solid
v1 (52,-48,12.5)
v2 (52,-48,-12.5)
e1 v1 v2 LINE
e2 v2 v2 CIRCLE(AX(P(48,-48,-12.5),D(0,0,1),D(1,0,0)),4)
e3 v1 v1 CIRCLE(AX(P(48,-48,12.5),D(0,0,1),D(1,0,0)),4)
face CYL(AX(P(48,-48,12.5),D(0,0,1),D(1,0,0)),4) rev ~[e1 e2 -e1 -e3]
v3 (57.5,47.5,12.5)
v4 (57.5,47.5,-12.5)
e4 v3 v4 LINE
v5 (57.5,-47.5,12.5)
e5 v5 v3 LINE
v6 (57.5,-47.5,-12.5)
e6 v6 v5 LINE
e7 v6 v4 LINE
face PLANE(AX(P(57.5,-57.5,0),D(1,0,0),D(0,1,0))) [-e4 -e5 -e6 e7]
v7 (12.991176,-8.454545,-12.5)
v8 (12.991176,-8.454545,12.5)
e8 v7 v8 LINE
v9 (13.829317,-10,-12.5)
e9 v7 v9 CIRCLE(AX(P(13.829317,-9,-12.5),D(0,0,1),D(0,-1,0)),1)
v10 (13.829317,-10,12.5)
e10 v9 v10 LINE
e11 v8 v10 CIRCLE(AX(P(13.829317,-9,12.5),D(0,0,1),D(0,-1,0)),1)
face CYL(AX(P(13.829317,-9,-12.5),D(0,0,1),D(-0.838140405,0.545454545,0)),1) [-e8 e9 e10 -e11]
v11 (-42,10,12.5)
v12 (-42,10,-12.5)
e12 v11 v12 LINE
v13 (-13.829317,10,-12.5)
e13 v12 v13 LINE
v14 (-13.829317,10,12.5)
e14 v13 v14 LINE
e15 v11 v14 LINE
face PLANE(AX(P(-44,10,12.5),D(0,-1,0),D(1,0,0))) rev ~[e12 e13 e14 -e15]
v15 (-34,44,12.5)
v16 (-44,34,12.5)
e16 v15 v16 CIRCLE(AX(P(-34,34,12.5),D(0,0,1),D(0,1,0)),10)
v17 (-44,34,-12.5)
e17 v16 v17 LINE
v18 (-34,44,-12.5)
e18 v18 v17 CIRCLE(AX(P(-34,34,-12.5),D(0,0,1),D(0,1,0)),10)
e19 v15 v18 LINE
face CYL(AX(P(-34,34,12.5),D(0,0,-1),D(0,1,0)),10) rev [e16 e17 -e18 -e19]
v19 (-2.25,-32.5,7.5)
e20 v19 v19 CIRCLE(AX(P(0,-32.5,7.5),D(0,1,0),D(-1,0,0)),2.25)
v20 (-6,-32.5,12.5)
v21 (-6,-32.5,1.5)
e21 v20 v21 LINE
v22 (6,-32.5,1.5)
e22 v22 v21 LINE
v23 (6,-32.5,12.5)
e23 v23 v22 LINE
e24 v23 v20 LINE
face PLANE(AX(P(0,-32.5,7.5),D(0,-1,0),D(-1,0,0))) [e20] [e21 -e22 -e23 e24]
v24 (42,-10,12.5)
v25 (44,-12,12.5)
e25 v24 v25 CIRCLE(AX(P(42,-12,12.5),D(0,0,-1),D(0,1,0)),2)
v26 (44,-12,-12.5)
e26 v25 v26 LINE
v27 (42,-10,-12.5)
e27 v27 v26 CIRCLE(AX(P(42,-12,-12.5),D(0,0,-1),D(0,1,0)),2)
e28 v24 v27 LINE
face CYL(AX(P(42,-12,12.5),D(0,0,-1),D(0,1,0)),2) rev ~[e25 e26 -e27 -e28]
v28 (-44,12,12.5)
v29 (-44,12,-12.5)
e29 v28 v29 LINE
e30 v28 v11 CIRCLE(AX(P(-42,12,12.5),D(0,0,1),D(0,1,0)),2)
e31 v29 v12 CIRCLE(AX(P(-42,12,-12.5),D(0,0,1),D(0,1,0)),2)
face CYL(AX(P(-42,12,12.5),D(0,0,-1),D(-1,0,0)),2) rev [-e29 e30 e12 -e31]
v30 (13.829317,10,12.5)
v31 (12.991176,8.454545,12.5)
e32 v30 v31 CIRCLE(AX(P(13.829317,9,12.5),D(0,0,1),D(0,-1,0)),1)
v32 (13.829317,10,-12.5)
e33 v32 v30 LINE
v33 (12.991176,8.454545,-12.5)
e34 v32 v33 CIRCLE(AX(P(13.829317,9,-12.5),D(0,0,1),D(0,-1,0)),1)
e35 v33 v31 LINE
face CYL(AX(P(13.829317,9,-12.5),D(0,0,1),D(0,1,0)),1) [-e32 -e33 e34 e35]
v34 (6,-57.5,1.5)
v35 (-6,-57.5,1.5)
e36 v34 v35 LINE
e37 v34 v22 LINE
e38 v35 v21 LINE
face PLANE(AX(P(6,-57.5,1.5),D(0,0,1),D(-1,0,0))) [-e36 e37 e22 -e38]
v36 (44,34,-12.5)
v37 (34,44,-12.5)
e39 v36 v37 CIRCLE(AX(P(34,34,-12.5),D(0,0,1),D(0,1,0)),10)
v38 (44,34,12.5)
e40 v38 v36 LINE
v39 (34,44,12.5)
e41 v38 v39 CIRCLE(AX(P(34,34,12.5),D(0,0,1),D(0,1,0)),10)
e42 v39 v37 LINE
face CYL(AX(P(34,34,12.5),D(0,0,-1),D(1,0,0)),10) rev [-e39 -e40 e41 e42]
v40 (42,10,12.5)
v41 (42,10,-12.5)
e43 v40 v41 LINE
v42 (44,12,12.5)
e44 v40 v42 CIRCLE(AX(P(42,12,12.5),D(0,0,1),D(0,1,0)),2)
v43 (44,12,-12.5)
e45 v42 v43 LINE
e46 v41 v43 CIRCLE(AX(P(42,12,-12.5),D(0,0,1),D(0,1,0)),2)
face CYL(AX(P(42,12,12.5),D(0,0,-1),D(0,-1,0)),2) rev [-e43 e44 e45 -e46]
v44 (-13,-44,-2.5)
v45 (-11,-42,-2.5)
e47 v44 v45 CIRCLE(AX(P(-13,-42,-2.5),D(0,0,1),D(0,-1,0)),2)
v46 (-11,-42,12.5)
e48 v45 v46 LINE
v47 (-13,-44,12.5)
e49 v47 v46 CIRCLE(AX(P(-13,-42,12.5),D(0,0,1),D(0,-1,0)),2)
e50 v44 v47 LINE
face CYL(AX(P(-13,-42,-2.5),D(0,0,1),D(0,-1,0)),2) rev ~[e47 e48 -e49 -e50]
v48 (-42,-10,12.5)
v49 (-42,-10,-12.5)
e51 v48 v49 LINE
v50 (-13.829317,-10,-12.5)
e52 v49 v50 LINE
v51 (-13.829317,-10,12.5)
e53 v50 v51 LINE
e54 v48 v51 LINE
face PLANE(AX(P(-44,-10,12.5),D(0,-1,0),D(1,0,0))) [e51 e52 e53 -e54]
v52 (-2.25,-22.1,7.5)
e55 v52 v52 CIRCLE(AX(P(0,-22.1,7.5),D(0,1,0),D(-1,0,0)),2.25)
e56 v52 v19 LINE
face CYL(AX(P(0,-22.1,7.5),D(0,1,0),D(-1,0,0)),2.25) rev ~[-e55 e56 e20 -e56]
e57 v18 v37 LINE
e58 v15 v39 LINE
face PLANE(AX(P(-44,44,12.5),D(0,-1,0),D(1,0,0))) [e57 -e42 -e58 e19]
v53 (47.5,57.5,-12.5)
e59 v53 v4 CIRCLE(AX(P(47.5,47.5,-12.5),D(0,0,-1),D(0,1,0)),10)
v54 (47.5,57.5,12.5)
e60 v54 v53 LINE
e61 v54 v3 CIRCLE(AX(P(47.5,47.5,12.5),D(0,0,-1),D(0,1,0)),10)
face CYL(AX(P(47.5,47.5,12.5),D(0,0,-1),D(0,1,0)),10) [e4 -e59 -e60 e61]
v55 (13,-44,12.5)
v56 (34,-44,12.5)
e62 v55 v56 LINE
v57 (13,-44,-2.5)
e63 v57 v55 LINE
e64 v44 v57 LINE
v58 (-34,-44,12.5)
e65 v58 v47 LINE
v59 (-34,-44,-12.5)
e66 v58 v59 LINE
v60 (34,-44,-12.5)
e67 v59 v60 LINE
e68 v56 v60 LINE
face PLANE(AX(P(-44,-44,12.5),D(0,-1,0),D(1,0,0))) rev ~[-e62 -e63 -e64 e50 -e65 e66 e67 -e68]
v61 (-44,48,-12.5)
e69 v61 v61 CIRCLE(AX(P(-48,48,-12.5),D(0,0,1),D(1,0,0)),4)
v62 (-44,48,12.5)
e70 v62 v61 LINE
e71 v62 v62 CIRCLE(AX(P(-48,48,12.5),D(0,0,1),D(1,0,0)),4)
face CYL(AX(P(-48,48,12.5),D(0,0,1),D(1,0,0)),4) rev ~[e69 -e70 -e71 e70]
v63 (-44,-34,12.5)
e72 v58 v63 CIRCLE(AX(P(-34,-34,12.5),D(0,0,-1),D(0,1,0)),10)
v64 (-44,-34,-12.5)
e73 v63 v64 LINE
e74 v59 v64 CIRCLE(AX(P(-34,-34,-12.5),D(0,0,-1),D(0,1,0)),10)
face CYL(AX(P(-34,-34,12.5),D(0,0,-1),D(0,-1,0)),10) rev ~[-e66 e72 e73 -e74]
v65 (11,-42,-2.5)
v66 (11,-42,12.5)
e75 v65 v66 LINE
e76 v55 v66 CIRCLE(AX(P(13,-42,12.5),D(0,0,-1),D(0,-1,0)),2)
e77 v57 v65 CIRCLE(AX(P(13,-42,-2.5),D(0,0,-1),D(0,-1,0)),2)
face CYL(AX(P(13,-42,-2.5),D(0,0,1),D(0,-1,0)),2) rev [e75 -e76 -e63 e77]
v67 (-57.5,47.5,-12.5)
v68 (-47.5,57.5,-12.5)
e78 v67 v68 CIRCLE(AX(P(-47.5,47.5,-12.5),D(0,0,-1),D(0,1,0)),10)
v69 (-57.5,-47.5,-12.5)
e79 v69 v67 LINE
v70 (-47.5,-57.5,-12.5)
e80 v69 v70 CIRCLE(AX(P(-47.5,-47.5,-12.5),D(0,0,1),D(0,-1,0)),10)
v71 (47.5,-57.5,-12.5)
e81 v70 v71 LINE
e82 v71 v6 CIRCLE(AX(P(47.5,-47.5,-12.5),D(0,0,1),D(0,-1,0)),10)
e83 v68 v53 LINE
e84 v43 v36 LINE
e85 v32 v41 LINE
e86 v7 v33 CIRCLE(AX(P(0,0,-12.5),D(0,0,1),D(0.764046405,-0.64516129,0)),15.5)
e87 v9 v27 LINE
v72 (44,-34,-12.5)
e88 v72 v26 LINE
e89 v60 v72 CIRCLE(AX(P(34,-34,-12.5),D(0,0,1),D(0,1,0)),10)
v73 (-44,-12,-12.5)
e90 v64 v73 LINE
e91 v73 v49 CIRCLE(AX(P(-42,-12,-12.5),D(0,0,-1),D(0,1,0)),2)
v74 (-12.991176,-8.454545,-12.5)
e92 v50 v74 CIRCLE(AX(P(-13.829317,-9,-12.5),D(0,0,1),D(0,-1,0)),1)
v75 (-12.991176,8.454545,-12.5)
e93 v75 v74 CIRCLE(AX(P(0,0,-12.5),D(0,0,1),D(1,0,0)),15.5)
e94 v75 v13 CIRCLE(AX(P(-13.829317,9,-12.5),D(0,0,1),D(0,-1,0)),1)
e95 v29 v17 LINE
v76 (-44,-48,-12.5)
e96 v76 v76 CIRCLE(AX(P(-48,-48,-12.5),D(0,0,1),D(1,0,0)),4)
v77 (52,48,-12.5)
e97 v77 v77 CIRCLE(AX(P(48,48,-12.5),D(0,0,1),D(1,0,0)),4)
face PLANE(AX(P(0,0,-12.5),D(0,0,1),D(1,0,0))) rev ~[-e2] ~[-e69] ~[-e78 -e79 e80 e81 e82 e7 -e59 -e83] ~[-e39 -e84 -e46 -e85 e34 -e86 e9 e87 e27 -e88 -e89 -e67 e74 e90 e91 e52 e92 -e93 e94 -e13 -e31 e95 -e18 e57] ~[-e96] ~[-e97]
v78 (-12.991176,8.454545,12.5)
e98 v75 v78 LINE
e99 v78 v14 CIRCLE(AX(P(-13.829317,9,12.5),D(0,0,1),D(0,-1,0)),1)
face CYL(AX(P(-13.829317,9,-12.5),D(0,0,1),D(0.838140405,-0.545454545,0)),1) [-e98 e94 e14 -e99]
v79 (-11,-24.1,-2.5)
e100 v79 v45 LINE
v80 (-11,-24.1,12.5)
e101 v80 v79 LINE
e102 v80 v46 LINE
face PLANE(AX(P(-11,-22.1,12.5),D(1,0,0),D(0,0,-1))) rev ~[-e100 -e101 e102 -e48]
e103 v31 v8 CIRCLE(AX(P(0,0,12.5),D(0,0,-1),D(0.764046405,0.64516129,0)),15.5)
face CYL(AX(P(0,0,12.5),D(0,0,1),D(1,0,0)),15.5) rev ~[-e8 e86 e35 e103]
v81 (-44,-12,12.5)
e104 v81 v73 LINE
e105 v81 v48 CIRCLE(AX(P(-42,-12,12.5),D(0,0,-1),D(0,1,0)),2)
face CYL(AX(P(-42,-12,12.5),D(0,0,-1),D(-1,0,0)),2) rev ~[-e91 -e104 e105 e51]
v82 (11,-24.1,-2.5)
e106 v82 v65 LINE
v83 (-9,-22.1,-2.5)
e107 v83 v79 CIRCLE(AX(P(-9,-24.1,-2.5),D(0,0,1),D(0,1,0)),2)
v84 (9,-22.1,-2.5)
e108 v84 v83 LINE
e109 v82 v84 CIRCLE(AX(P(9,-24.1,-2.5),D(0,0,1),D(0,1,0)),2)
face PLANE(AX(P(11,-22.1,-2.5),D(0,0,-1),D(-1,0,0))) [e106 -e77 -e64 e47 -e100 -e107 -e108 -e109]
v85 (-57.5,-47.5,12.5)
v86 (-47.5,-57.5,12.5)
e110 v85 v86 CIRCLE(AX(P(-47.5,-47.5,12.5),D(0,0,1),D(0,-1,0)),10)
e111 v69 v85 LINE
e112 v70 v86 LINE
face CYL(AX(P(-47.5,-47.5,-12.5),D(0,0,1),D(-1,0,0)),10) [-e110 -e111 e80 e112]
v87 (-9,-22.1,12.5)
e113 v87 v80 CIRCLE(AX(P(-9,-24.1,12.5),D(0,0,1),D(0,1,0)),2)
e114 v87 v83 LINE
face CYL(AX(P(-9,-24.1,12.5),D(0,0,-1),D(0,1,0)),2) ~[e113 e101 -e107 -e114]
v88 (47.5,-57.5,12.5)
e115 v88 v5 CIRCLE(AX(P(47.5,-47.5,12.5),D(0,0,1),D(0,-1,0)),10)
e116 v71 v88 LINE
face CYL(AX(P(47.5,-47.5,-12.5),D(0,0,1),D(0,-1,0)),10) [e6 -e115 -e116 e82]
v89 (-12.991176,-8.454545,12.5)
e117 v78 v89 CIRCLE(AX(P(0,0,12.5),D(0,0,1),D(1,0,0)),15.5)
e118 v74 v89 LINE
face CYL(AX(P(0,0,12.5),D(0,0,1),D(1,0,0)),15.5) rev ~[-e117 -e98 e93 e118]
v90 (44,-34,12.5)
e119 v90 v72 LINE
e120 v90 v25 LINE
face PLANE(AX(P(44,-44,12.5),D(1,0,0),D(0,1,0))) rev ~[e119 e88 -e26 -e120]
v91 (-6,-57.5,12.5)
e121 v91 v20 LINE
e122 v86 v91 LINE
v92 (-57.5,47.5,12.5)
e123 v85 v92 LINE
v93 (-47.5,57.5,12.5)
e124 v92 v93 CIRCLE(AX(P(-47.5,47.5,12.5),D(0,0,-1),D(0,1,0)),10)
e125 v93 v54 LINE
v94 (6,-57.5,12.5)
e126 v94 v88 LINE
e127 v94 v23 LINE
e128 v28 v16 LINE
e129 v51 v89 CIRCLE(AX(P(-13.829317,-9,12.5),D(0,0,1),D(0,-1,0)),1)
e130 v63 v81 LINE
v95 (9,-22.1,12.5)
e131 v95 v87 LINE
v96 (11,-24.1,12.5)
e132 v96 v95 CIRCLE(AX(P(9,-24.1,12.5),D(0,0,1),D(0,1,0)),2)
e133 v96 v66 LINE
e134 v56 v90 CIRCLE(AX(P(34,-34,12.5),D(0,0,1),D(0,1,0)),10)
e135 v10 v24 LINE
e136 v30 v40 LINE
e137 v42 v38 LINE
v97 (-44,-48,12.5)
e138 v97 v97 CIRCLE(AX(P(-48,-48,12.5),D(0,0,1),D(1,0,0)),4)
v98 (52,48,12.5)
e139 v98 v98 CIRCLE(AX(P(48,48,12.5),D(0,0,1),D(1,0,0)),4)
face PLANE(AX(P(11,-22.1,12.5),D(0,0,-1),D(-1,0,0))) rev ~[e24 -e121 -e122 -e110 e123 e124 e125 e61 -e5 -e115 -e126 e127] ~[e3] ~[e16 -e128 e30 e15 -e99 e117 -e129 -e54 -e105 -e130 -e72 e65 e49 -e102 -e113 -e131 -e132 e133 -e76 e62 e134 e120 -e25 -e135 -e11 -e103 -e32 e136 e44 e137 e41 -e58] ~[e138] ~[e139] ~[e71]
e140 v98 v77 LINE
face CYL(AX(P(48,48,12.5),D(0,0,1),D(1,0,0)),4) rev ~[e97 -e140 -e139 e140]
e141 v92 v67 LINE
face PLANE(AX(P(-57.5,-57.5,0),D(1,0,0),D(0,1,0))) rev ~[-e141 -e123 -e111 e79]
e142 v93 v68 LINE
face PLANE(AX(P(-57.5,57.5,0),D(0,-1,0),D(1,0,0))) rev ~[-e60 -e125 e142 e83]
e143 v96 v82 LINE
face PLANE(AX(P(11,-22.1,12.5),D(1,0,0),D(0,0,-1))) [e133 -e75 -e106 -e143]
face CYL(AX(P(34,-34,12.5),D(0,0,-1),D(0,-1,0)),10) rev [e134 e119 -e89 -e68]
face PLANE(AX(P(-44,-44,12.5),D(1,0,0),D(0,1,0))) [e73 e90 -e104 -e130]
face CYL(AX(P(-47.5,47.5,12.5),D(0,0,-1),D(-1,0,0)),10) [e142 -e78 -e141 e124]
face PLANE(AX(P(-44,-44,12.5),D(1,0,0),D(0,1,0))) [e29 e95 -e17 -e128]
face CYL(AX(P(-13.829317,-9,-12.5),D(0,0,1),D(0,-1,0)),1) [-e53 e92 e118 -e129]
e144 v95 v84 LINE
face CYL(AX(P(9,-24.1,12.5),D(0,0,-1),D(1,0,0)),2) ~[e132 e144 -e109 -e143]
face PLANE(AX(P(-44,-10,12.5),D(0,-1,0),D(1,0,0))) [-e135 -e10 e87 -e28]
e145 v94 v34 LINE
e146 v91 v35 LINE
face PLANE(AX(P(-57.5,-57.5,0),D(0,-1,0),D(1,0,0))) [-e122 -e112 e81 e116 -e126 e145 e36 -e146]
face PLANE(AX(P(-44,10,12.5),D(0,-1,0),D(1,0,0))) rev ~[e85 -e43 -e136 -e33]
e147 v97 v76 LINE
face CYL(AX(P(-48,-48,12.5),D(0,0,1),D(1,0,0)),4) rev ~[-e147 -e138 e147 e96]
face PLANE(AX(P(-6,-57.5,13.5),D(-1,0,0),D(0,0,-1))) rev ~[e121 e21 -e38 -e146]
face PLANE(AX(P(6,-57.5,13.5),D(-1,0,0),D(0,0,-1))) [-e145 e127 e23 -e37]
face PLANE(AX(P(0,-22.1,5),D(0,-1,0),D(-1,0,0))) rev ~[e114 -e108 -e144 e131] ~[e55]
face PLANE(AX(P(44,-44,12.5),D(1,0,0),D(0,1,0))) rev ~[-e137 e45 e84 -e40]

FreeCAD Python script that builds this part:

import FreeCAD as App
import Part
import Sketcher
from FreeCAD import Vector
Q = App.Units.Quantity


def edges_at(feature, points):
    """Names of the edges that pass closest to the given points."""
    edges = feature.Shape.Edges
    near = lambda p: min(range(len(edges)), key=lambda i: edges[i].distToShape(Part.Vertex(*p))[0])
    return sorted({f"Edge{near(p) + 1}" for p in points})


def add_polygon(sketch, points):
    """Adds a closed chain of lines whose ends are joined by coincident constraints."""
    first, n = sketch.GeometryCount, len(points)
    for a, b in zip(points, points[1:] + points[:1]):
        sketch.addGeometry(Part.LineSegment(App.Vector(*a, 0), App.Vector(*b, 0)), False)
    for i in range(n):
        sketch.addConstraint(Sketcher.Constraint("Coincident", first + i, 2, first + (i + 1) % n, 1))

doc = App.newDocument("Part")
body = doc.addObject("PartDesign::Body", "Body")

sketch1 = body.newObject("Sketcher::SketchObject", "Sketch")
sketch1.AttachmentSupport = (doc.getObject("XY_Plane"), [""])
sketch1.MapMode = "FlatFace"
add_polygon(sketch1, [(-57.5, 57.5), (-57.5, -57.5), (57.5, -57.5), (57.5, 57.5)])
sketch1.addConstraint(Sketcher.Constraint("Vertical", 0))
sketch1.addConstraint(Sketcher.Constraint("Horizontal", 1))
sketch1.addConstraint(Sketcher.Constraint("Vertical", 2))
sketch1.addConstraint(Sketcher.Constraint("Horizontal", 3))
sketch1.addConstraint(Sketcher.Constraint("Symmetric", 0, 2, 2, 2, -1, 1))
sketch1.addConstraint(Sketcher.Constraint("Equal", 3, 0))
sketch1.addConstraint(Sketcher.Constraint("DistanceX", 1, 1, 1, 2, Q("115 mm")))
pad1 = body.newObject("PartDesign::Pad", "Pad")
pad1.Profile = sketch1
pad1.Length = 25
pad1.Midplane = True

sketch2 = body.newObject("Sketcher::SketchObject", "Sketch001")
sketch2.AttachmentSupport = (doc.getObject("XY_Plane"), [""])
sketch2.MapMode = "FlatFace"
sketch2.AttachmentOffset = App.Placement(Vector(0, 0, 12.5), App.Rotation())
sketch2.addGeometry(Part.Circle(Vector(-48, 48, 0), Vector(0, 0, 1), 4), False)
sketch2.addGeometry(Part.Circle(Vector(48, 48, 0), Vector(0, 0, 1), 4), False)
sketch2.addGeometry(Part.Circle(Vector(48, -48, 0), Vector(0, 0, 1), 4), False)
sketch2.addGeometry(Part.Circle(Vector(-48, -48, 0), Vector(0, 0, 1), 4), False)
sketch2.addConstraint(Sketcher.Constraint("Equal", 0, 1))
sketch2.addConstraint(Sketcher.Constraint("Equal", 1, 2))
sketch2.addConstraint(Sketcher.Constraint("Equal", 2, 3))
sketch2.addConstraint(Sketcher.Constraint("Symmetric", 0, 3, 2, 3, -1, 1))
sketch2.addConstraint(Sketcher.Constraint("Symmetric", 1, 3, 3, 3, -1, 1))
sketch2.addConstraint(Sketcher.Constraint("Symmetric", 0, 3, 1, 3, -2))
sketch2.addConstraint(Sketcher.Constraint("Diameter", 0, Q("8 mm")))
sketch2.addConstraint(Sketcher.Constraint("DistanceX", 0, 3, -1, 1, Q("48 mm")))
sketch2.addConstraint(Sketcher.Constraint("DistanceY", -1, 1, 0, 3, Q("48 mm")))
pocket1 = body.newObject("PartDesign::Pocket", "Pocket")
pocket1.Profile = sketch2
pocket1.Length = 30
doc.recompute()

fillet = body.newObject("PartDesign::Fillet", "Fillet")
fillet.Base = (pocket1, edges_at(pocket1, [
    (-57.5, 57.5, 0),
    (57.5, 57.5, 0),
    (57.5, -57.5, 0),
    (-57.5, -57.5, 0),
]))
fillet.Radius = 10

sketch3 = body.newObject("Sketcher::SketchObject", "Sketch002")
sketch3.AttachmentSupport = (doc.getObject("XY_Plane"), [""])
sketch3.MapMode = "FlatFace"
sketch3.AttachmentOffset = App.Placement(Vector(0, 0, 12.5), App.Rotation())
add_polygon(sketch3, [(-44, 44), (-44, -44), (44, -44), (44, 44)])
sketch3.addConstraint(Sketcher.Constraint("Vertical", 0))
sketch3.addConstraint(Sketcher.Constraint("Horizontal", 1))
sketch3.addConstraint(Sketcher.Constraint("Vertical", 2))
sketch3.addConstraint(Sketcher.Constraint("Horizontal", 3))
sketch3.addConstraint(Sketcher.Constraint("Symmetric", 0, 2, 2, 2, -1, 1))
sketch3.addConstraint(Sketcher.Constraint("Equal", 3, 0))
sketch3.addConstraint(Sketcher.Constraint("DistanceX", 1, 1, 1, 2, Q("88 mm")))
pocket2 = body.newObject("PartDesign::Pocket", "Pocket001")
pocket2.Profile = sketch3
pocket2.Length = 30
doc.recompute()

fillet2 = body.newObject("PartDesign::Fillet", "Fillet001")
fillet2.Base = (pocket2, edges_at(pocket2, [
    (-44, -44, 0),
    (-44, 44, 0),
    (44, 44, 0),
    (44, -44, 0),
]))
fillet2.Radius = 10

sketch4 = body.newObject("Sketcher::SketchObject", "Sketch003")
sketch4.AttachmentSupport = (doc.getObject("XY_Plane"), [""])
sketch4.MapMode = "FlatFace"
sketch4.AttachmentOffset = App.Placement(Vector(0, 0, 12.5), App.Rotation())
add_polygon(sketch4, [(-44, 10), (-44, -10), (44, -10), (44, 10)])
sketch4.addConstraint(Sketcher.Constraint("Vertical", 0))
sketch4.addConstraint(Sketcher.Constraint("Horizontal", 1))
sketch4.addConstraint(Sketcher.Constraint("Vertical", 2))
sketch4.addConstraint(Sketcher.Constraint("Horizontal", 3))
sketch4.addConstraint(Sketcher.Constraint("Symmetric", 0, 2, 2, 2, -1, 1))
sketch4.addConstraint(Sketcher.Constraint("DistanceX", 1, 1, 1, 2, Q("88 mm")))
sketch4.addConstraint(Sketcher.Constraint("DistanceY", 0, 2, 0, 1, Q("20 mm")))
pad2 = body.newObject("PartDesign::Pad", "Pad001")
pad2.Profile = sketch4
pad2.Length = 25
pad2.Reversed = True

sketch5 = body.newObject("Sketcher::SketchObject", "Sketch004")
sketch5.AttachmentSupport = (doc.getObject("XZ_Plane"), [""])
sketch5.MapMode = "FlatFace"
sketch5.AttachmentOffset = App.Placement(Vector(0, 0, 22.1), App.Rotation())
add_polygon(sketch5, [(11, -2.5), (11, 12.5), (-11, 12.5), (-11, -2.5)])
sketch5.addConstraint(Sketcher.Constraint("Vertical", 0))
sketch5.addConstraint(Sketcher.Constraint("Horizontal", 1))
sketch5.addConstraint(Sketcher.Constraint("Vertical", 2))
sketch5.addConstraint(Sketcher.Constraint("Horizontal", 3))
sketch5.addConstraint(Sketcher.Constraint("DistanceX", 1, 2, 1, 1, Q("22 mm")))
sketch5.addConstraint(Sketcher.Constraint("DistanceY", 0, 1, 0, 2, Q("15 mm")))
sketch5.addConstraint(Sketcher.Constraint("DistanceX", -1, 1, 0, 2, Q("11 mm")))
sketch5.addConstraint(Sketcher.Constraint("DistanceY", -1, 1, 0, 2, Q("12.5 mm")))
pad3 = body.newObject("PartDesign::Pad", "Pad002")
pad3.Profile = sketch5
pad3.Length = 30

sketch6 = body.newObject("Sketcher::SketchObject", "Sketch005")
sketch6.AttachmentSupport = (doc.getObject("XY_Plane"), [""])
sketch6.MapMode = "FlatFace"
sketch6.AttachmentOffset = App.Placement(Vector(0, 0, 12.5), App.Rotation())
sketch6.addGeometry(Part.Circle(Vector(0, 0, 0), Vector(0, 0, 1), 15.5), False)
sketch6.addConstraint(Sketcher.Constraint("Coincident", 0, 3, -1, 1))
sketch6.addConstraint(Sketcher.Constraint("Diameter", 0, Q("31 mm")))
pocket3 = body.newObject("PartDesign::Pocket", "Pocket002")
pocket3.Profile = sketch6
pocket3.Length = 30
doc.recompute()

fillet3 = body.newObject("PartDesign::Fillet", "Fillet002")
fillet3.Base = (pocket3, edges_at(pocket3, [
    (-11.843, -10, 0),
    (11.843, -10, 0),
    (11.843, 10, 0),
    (-11.843, 10, 0),
]))
fillet3.Radius = 1
doc.recompute()

fillet4 = body.newObject("PartDesign::Fillet", "Fillet003")
fillet4.Base = (fillet3, edges_at(fillet3, [
    (-44, -10, 0),
    (-44, 10, 0),
    (44, 10, 0),
    (44, -10, 0),
    (-11, -44, 5),
    (11, -44, 5),
    (11, -22.1, 5),
    (-11, -22.1, 5),
]))
fillet4.Radius = 2

sketch7 = body.newObject("Sketcher::SketchObject", "Sketch006")
sketch7.AttachmentSupport = (doc.getObject("XZ_Plane"), [""])
sketch7.MapMode = "FlatFace"
sketch7.AttachmentOffset = App.Placement(Vector(0, 0, 22.1), App.Rotation())
sketch7.addGeometry(Part.Circle(Vector(0, 7.5, 0), Vector(0, 0, 1), 2.25), False)
sketch7.addConstraint(Sketcher.Constraint("PointOnObject", 0, 3, -2))
sketch7.addConstraint(Sketcher.Constraint("Diameter", 0, Q("4.5 mm")))
sketch7.addConstraint(Sketcher.Constraint("DistanceY", -1, 1, 0, 3, Q("7.5 mm")))
pocket4 = body.newObject("PartDesign::Pocket", "Pocket003")
pocket4.Profile = sketch7
pocket4.Length = 40
pocket4.Reversed = True

sketch8 = body.newObject("Sketcher::SketchObject", "Sketch007")
sketch8.AttachmentSupport = (doc.getObject("XZ_Plane"), [""])
sketch8.MapMode = "FlatFace"
sketch8.AttachmentOffset = App.Placement(Vector(0, 0, 57.5), App.Rotation())
add_polygon(sketch8, [(6, 1.5), (6, 13.5), (-6, 13.5), (-6, 1.5)])
sketch8.addConstraint(Sketcher.Constraint("Vertical", 0))
sketch8.addConstraint(Sketcher.Constraint("Horizontal", 1))
sketch8.addConstraint(Sketcher.Constraint("Vertical", 2))
sketch8.addConstraint(Sketcher.Constraint("Horizontal", 3))
sketch8.addConstraint(Sketcher.Constraint("Equal", 3, 0))
sketch8.addConstraint(Sketcher.Constraint("DistanceX", 1, 2, 1, 1, Q("12 mm")))
sketch8.addConstraint(Sketcher.Constraint("DistanceX", -1, 1, 0, 2, Q("6 mm")))
sketch8.addConstraint(Sketcher.Constraint("DistanceY", -1, 1, 0, 2, Q("13.5 mm")))
pocket5 = body.newObject("PartDesign::Pocket", "Pocket004")
pocket5.Profile = sketch8
pocket5.Length = 25

doc.recompute()
